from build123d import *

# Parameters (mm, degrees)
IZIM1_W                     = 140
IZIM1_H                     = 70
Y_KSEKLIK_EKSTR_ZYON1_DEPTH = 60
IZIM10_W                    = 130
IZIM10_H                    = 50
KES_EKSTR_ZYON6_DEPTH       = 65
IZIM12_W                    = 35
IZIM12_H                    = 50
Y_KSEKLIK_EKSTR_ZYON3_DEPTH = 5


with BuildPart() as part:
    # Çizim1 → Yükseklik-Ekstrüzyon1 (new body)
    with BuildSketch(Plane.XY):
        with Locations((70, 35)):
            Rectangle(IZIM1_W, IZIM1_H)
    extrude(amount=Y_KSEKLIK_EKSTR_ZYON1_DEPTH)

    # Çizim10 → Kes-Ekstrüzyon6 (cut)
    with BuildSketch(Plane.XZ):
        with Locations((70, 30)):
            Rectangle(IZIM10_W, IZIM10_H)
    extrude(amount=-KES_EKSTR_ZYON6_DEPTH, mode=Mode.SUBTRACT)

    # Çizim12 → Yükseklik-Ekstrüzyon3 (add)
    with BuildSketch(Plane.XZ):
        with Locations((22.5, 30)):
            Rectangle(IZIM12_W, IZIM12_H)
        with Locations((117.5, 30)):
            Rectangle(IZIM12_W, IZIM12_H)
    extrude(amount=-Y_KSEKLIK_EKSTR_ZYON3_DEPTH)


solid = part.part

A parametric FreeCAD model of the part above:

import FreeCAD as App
import Part
import Sketcher

V = App.Vector


def add_polygon(sketch, points):
    """Adds a closed chain of lines whose ends are joined by coincident constraints."""
    first, n = sketch.GeometryCount, len(points)
    for a, b in zip(points, points[1:] + points[:1]):
        sketch.addGeometry(Part.LineSegment(App.Vector(*a, 0), App.Vector(*b, 0)), False)
    for i in range(n):
        sketch.addConstraint(Sketcher.Constraint("Coincident", first + i, 2, first + (i + 1) % n, 1))

doc = App.newDocument("Part")
params = doc.addObject("Spreadsheet::Sheet", "Params")
for row, (alias, value) in enumerate([
    ("sketch1_width", "140 mm"),
    ("sketch1_height", "70 mm"),
    ("pad1_length", "60 mm"),
    ("sketch2_width", "130 mm"),
    ("sketch2_height", "50 mm"),
    ("pocket1_length", "65 mm"),
    ("sketch3_width", "35 mm"),
    ("sketch3_height", "50 mm"),
    ("pad2_length", "5 mm"),
], start=1):
    params.set(f"A{row}", alias)
    params.set(f"B{row}", "=" + value)
    params.setAlias(f"B{row}", alias)

body = doc.addObject("PartDesign::Body", "Body")

sketch1 = body.newObject("Sketcher::SketchObject", "Sketch")
sketch1.AttachmentSupport = (doc.getObject("XY_Plane"), [""])
sketch1.MapMode = "FlatFace"
add_polygon(sketch1, [(0, 70), (0, 0), (140, 0), (140, 70)])
sketch1.addConstraint([
    Sketcher.Constraint("Vertical", 0),
    Sketcher.Constraint("Horizontal", 1),
    Sketcher.Constraint("Vertical", 2),
    Sketcher.Constraint("Horizontal", 3),
    Sketcher.Constraint("Coincident", 0, 2, -1, 1),
    Sketcher.Constraint("DistanceX", 1, 1, 1, 2, 140.0),
    Sketcher.Constraint("DistanceY", 0, 2, 0, 1, 70.0),
])
sketch1.setExpression("Constraints[9]", "Params.sketch1_width")
sketch1.setExpression("Constraints[10]", "Params.sketch1_height")
pad1 = body.newObject("PartDesign::Pad", "Pad")
pad1.Profile = sketch1
pad1.setExpression("Length", "Params.pad1_length")

sketch2 = body.newObject("Sketcher::SketchObject", "Sketch001")
sketch2.AttachmentSupport = (doc.getObject("XZ_Plane"), [""])
sketch2.MapMode = "FlatFace"
add_polygon(sketch2, [(5, 55), (5, 5), (135, 5), (135, 55)])
sketch2.addConstraint([
    Sketcher.Constraint("Vertical", 0),
    Sketcher.Constraint("Horizontal", 1),
    Sketcher.Constraint("Vertical", 2),
    Sketcher.Constraint("Horizontal", 3),
    Sketcher.Constraint("DistanceX", 1, 1, 1, 2, 130.0),
    Sketcher.Constraint("DistanceY", 0, 2, 0, 1, 50.0),
    Sketcher.Constraint("DistanceX", -1, 1, 0, 2, 5.0),
    Sketcher.Constraint("DistanceY", -1, 1, 0, 2, 5.0),
])
sketch2.setExpression("Constraints[8]", "Params.sketch2_width")
sketch2.setExpression("Constraints[9]", "Params.sketch2_height")
pocket1 = body.newObject("PartDesign::Pocket", "Pocket")
pocket1.Profile = sketch2
pocket1.setExpression("Length", "Params.pocket1_length")

sketch3 = body.newObject("Sketcher::SketchObject", "Sketch002")
sketch3.AttachmentSupport = (doc.getObject("XZ_Plane"), [""])
sketch3.MapMode = "FlatFace"
add_polygon(sketch3, [(5, 55), (5, 5), (40, 5), (40, 55)])
add_polygon(sketch3, [(100, 55), (100, 5), (135, 5), (135, 55)])
sketch3.addConstraint([
    Sketcher.Constraint("Vertical", 0),
    Sketcher.Constraint("Horizontal", 1),
    Sketcher.Constraint("Vertical", 2),
    Sketcher.Constraint("Horizontal", 3),
    Sketcher.Constraint("Vertical", 4),
    Sketcher.Constraint("Horizontal", 5),
    Sketcher.Constraint("Vertical", 6),
    Sketcher.Constraint("Horizontal", 7),
    Sketcher.Constraint("Horizontal", 1, 2, 4, 2),
    Sketcher.Constraint("Horizontal", 3, 2, 6, 2),
    Sketcher.Constraint("Equal", 3, 5),
    Sketcher.Constraint("DistanceX", 1, 1, 1, 2, 35.0),
    Sketcher.Constraint("DistanceY", 0, 2, 0, 1, 50.0),
    Sketcher.Constraint("DistanceX", -1, 1, 0, 2, 5.0),
    Sketcher.Constraint("DistanceY", -1, 1, 0, 2, 5.0),
    Sketcher.Constraint("DistanceX", -1, 1, 4, 2, 100.0),
])
sketch3.setExpression("Constraints[19]", "Params.sketch3_width")
sketch3.setExpression("Constraints[20]", "Params.sketch3_height")
pad2 = body.newObject("PartDesign::Pad", "Pad001")
pad2.Profile = sketch3
pad2.setExpression("Length", "Params.pad2_length")
pad2.Reversed = True

doc.recompute()
